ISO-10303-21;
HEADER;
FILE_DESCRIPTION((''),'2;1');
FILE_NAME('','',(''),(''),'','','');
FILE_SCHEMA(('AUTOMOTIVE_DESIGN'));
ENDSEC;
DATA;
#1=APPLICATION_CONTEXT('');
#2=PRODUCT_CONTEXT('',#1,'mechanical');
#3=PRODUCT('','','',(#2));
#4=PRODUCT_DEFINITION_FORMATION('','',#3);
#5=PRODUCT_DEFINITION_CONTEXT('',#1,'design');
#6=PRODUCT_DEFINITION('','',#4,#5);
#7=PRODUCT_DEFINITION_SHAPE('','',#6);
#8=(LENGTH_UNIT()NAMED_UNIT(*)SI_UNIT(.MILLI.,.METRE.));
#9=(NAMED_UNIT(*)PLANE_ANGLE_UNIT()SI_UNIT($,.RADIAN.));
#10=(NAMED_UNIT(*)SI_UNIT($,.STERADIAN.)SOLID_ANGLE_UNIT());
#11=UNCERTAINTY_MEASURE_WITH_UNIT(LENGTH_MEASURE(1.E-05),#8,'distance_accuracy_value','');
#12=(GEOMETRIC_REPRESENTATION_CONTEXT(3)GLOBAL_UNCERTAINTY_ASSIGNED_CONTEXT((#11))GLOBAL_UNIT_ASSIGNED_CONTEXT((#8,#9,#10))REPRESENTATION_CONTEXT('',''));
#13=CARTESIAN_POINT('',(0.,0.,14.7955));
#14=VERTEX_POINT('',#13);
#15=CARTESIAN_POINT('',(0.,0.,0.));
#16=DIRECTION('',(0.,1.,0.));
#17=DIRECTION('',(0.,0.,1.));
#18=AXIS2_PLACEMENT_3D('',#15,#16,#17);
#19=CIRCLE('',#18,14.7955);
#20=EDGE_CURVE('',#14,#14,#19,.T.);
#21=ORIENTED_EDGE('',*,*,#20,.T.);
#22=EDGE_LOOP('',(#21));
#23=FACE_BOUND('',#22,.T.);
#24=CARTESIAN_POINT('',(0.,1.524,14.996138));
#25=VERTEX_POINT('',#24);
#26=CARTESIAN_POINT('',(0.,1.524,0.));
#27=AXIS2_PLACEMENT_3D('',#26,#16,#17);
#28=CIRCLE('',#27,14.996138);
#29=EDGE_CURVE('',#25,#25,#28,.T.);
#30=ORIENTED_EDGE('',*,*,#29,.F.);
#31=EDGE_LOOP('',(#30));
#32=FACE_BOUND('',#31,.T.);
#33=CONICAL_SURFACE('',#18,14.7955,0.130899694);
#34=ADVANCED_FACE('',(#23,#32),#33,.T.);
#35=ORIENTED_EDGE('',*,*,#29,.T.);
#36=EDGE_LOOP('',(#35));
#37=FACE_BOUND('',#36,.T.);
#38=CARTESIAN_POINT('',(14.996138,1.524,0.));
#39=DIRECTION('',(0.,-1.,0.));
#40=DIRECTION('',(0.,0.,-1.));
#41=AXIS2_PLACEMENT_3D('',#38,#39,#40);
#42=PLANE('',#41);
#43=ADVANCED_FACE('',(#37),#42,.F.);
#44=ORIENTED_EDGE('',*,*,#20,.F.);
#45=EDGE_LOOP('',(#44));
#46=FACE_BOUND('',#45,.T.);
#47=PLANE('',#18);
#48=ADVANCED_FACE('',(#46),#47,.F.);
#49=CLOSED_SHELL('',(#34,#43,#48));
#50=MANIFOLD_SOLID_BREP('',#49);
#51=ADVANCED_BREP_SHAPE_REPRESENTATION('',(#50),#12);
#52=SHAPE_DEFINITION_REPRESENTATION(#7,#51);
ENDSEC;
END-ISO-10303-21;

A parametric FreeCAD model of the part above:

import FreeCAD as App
import Part
import Sketcher
from FreeCAD import Vector
Q = App.Units.Quantity

doc = App.newDocument("Part")
body = doc.addObject("PartDesign::Body", "Body")

# Sketch on XY plane
sketch1 = body.newObject("Sketcher::SketchObject", "Sketch")
sketch1.AttachmentSupport = (doc.getObject("XY_Plane"), [""])
sketch1.MapMode = "FlatFace"
sketch1.addGeometry([
    Part.LineSegment(Vector(0, 0, 0), Vector(14.8, 0, 0)),
    Part.LineSegment(Vector(14.8, 0, 0), Vector(15, 1.5, 0)),
    Part.LineSegment(Vector(15, 1.5, 0), Vector(0, 1.5, 0)),
    Part.LineSegment(Vector(0, 1.5, 0), Vector(0, 0, 0)),
], False)
sketch1.addConstraint([
    Sketcher.Constraint("Coincident", 0, 2, 1, 1),
    Sketcher.Constraint("Coincident", 1, 2, 2, 1),
    Sketcher.Constraint("Coincident", 2, 2, 3, 1),
    Sketcher.Constraint("Coincident", 3, 2, 0, 1),
    Sketcher.Constraint("Horizontal", 0),
    Sketcher.Constraint("Horizontal", 2),
    Sketcher.Constraint("Vertical", 3),
    Sketcher.Constraint("Coincident", 3, 2, -1, 1),
    Sketcher.Constraint("DistanceY", 3, 2, 3, 1, Q("0.06 in")),
    Sketcher.Constraint("Angle", 1, Q("82.5 deg")),
    Sketcher.Constraint("DistanceX", 0, 1, 0, 2, Q("0.5825 in")),
])
revolution = body.newObject("PartDesign::Revolution", "Revolution")
revolution.Profile = sketch1
revolution.ReferenceAxis = (sketch1, ["V_Axis"])
revolution.Angle = 360

doc.recompute()
